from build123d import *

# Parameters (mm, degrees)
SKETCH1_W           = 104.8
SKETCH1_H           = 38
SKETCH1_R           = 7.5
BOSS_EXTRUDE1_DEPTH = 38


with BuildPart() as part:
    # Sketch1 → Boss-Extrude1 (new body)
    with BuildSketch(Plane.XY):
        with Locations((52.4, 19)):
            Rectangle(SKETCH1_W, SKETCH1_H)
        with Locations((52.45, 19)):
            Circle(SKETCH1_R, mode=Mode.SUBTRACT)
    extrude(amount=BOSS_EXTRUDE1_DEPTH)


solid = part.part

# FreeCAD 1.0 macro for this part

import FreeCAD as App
import Part
import Sketcher
from FreeCAD import Vector

doc = App.newDocument("Part")
body = doc.addObject("PartDesign::Body", "Body")

sketch1 = doc.addObject("Sketcher::SketchObject", "Sketch")
body.addObject(sketch1)
sketch1.AttachmentSupport = (doc.XY_Plane, [""])
sketch1.MapMode = "FlatFace"
sketch1.addGeometry(Part.LineSegment(Vector(0, 38, 0), Vector(0, 0, 0)), False)
sketch1.addGeometry(Part.LineSegment(Vector(0, 0, 0), Vector(105, 0, 0)), False)
sketch1.addGeometry(Part.LineSegment(Vector(105, 0, 0), Vector(105, 38, 0)), False)
sketch1.addGeometry(Part.LineSegment(Vector(105, 38, 0), Vector(0, 38, 0)), False)
sketch1.addGeometry(Part.Circle(Vector(52, 19, 0), Vector(0, 0, 1), 8), False)
sketch1.addConstraint(Sketcher.Constraint("Coincident", 0, 2, 1, 1))
sketch1.addConstraint(Sketcher.Constraint("Coincident", 1, 2, 2, 1))
sketch1.addConstraint(Sketcher.Constraint("Coincident", 2, 2, 3, 1))
sketch1.addConstraint(Sketcher.Constraint("Coincident", 3, 2, 0, 1))
sketch1.addConstraint(Sketcher.Constraint("Vertical", 0))
sketch1.addConstraint(Sketcher.Constraint("Horizontal", 1))
sketch1.addConstraint(Sketcher.Constraint("Vertical", 2))
sketch1.addConstraint(Sketcher.Constraint("Horizontal", 3))
sketch1.addConstraint(Sketcher.Constraint("Coincident", 0, 2, -1, 1))
sketch1.addConstraint(Sketcher.Constraint("Diameter", 4, 15.0))
sketch1.addConstraint(Sketcher.Constraint("DistanceY", 0, 2, 0, 1, 38.0))
sketch1.addConstraint(Sketcher.Constraint("DistanceX", 1, 1, 1, 2, 104.8))
sketch1.addConstraint(Sketcher.Constraint("DistanceY", -1, 1, 4, 3, 19.0))
sketch1.addConstraint(Sketcher.Constraint("DistanceX", -1, 1, 4, 3, 52.45))
pad1 = doc.addObject("PartDesign::Pad", "Pad")
body.addObject(pad1)
pad1.Profile = sketch1
pad1.Length = 38

doc.recompute()
